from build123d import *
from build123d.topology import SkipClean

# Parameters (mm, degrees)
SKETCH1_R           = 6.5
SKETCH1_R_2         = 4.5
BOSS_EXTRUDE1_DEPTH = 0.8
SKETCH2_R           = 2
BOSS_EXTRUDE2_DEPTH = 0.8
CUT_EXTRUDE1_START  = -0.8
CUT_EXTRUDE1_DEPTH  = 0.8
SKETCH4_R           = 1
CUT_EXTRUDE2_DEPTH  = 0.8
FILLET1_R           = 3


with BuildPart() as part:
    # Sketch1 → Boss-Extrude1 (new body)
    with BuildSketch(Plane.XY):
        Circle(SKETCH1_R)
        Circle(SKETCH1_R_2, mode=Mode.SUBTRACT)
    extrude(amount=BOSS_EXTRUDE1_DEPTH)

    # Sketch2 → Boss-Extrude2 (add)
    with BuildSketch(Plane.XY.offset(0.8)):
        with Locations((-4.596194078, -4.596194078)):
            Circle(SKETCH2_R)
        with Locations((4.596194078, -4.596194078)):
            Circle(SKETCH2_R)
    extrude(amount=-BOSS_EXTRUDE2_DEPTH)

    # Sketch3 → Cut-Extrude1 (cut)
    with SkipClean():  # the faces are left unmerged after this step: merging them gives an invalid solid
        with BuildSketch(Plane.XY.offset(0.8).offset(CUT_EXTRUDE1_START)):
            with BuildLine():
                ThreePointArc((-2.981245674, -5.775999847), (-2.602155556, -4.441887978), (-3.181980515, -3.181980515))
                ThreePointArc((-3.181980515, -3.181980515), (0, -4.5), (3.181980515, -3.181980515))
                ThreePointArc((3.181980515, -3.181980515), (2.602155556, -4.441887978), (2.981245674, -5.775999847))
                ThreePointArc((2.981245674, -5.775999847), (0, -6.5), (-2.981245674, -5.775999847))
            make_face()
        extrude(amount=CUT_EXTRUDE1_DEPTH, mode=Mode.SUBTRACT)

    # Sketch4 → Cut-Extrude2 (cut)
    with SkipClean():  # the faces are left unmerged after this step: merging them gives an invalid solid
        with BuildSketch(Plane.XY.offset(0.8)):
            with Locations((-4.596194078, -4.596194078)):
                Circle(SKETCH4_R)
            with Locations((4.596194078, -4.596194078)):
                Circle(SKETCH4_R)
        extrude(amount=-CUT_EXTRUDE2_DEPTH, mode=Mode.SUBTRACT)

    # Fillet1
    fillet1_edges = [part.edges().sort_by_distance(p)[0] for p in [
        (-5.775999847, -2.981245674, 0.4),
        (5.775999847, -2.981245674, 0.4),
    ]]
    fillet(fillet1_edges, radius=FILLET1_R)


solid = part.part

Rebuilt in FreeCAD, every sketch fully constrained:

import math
import FreeCAD as App
import Part
import Sketcher

V = App.Vector
Q = App.Units.Quantity


def edges_at(feature, points):
    """Names of the edges that pass closest to the given points."""
    edges = feature.Shape.Edges
    near = lambda p: min(range(len(edges)), key=lambda i: edges[i].distToShape(Part.Vertex(*p))[0])
    return sorted({f"Edge{near(p) + 1}" for p in points})

doc = App.newDocument("Part")
params = doc.addObject("Spreadsheet::Sheet", "Params")
for row, (alias, value) in enumerate([
    ("sketch1_diameter", "13 mm"),
    ("sketch1_diameter2", "9 mm"),
    ("pad1_length", "0.8 mm"),
    ("sketch2_diameter", "4 mm"),
    ("pad2_length", "0.8 mm"),
    ("sketch3_radius", "2 mm"),
    ("sketch3_radius2", "6.5 mm"),
    ("sketch3_radius3", "4.5 mm"),
    ("pocket1_length", "0.8 mm"),
    ("sketch4_diameter", "2 mm"),
    ("pocket2_length", "0.8 mm"),
    ("fillet_radius", "3 mm"),
], start=1):
    params.set(f"A{row}", alias)
    params.set(f"B{row}", "=" + value)
    params.setAlias(f"B{row}", alias)

body = doc.addObject("PartDesign::Body", "Body")

# Sketch on XY plane
sketch1 = body.newObject("Sketcher::SketchObject", "Sketch")
sketch1.AttachmentSupport = (doc.getObject("XY_Plane"), [""])
sketch1.MapMode = "FlatFace"
sketch1.addGeometry([
    Part.Circle(V(0, 0, 0), V(0, 0, 1), 6.5),
    Part.Circle(V(0, 0, 0), V(0, 0, 1), 4.5),
], False)
sketch1.addConstraint([
    Sketcher.Constraint("Coincident", 0, 3, -1, 1),
    Sketcher.Constraint("Coincident", 1, 3, -1, 1),
    Sketcher.Constraint("Diameter", 0, Q("13 mm")),
    Sketcher.Constraint("Diameter", 1, Q("9 mm")),
])
sketch1.setExpression("Constraints[2]", "Params.sketch1_diameter")
sketch1.setExpression("Constraints[3]", "Params.sketch1_diameter2")
pad1 = body.newObject("PartDesign::Pad", "Pad")
pad1.Profile = sketch1
pad1.setExpression("Length", "Params.pad1_length")

# Sketch on XY plane
sketch2 = body.newObject("Sketcher::SketchObject", "Sketch001")
sketch2.AttachmentSupport = (doc.getObject("XY_Plane"), [""])
sketch2.MapMode = "FlatFace"
sketch2.AttachmentOffset = App.Placement(V(0, 0, 0.8), App.Rotation())
sketch2.addGeometry([
    Part.Circle(V(-4.596194, -4.596194, 0), V(0, 0, 1), 2),
    Part.Circle(V(4.596194, -4.596194, 0), V(0, 0, 1), 2),
], False)
sketch2.addConstraint([
    Sketcher.Constraint("Equal", 0, 1),
    Sketcher.Constraint("Symmetric", 0, 3, 1, 3, -2),
    Sketcher.Constraint("Diameter", 0, Q("4 mm")),
    Sketcher.Constraint("DistanceX", 0, 3, 1, 3, Q("9.192388 mm")),
    Sketcher.Constraint("DistanceY", 0, 3, -1, 1, Q("4.596194 mm")),
])
sketch2.setExpression("Constraints[2]", "Params.sketch2_diameter")
pad2 = body.newObject("PartDesign::Pad", "Pad001")
pad2.Profile = sketch2
pad2.setExpression("Length", "Params.pad2_length")
pad2.Reversed = True

# Sketch on XY plane
sketch3 = body.newObject("Sketcher::SketchObject", "Sketch002")
sketch3.AttachmentSupport = (doc.getObject("XY_Plane"), [""])
sketch3.MapMode = "FlatFace"
sketch3.addGeometry([
    Part.ArcOfCircle(Part.Circle(V(-4.596194, -4.596194, 0), V(0, 0, 1), 2), math.radians(-36.150117), math.radians(45)),
    Part.ArcOfCircle(Part.Circle(V(0, 0, 0), V(0, 0, 1), 6.5), math.radians(-117.300234), math.radians(-62.699766)),
    Part.ArcOfCircle(Part.Circle(V(4.596194, -4.596194, 0), V(0, 0, 1), 2), math.radians(135), math.radians(216.150117)),
    Part.ArcOfCircle(Part.Circle(V(0, 0, 0), V(0, 0, 1), 4.5), math.radians(-135), math.radians(-45)),
], False)
sketch3.addConstraint([
    Sketcher.Constraint("Coincident", 0, 1, 1, 1),
    Sketcher.Constraint("Coincident", 1, 2, 2, 2),
    Sketcher.Constraint("Tangent", 2, 1, 3, 2),
    Sketcher.Constraint("Tangent", 3, 1, 0, 2),
    Sketcher.Constraint("Coincident", 1, 3, -1, 1),
    Sketcher.Constraint("Coincident", 3, 3, -1, 1),
    Sketcher.Constraint("Equal", 0, 2),
    Sketcher.Constraint("Horizontal", 0, 3, 2, 3),
    Sketcher.Constraint("Radius", 0, Q("2 mm")),
    Sketcher.Constraint("Radius", 1, Q("6.5 mm")),
    Sketcher.Constraint("Radius", 3, Q("4.5 mm")),
    Sketcher.Constraint("DistanceY", 0, 1, -1, 1, Q("5.776 mm")),
])
sketch3.setExpression("Constraints[8]", "Params.sketch3_radius")
sketch3.setExpression("Constraints[9]", "Params.sketch3_radius2")
sketch3.setExpression("Constraints[10]", "Params.sketch3_radius3")
pocket1 = body.newObject("PartDesign::Pocket", "Pocket")
pocket1.Profile = sketch3
pocket1.setExpression("Length", "Params.pocket1_length")
pocket1.Reversed = True

# Sketch on XY plane
sketch4 = body.newObject("Sketcher::SketchObject", "Sketch003")
sketch4.AttachmentSupport = (doc.getObject("XY_Plane"), [""])
sketch4.MapMode = "FlatFace"
sketch4.AttachmentOffset = App.Placement(V(0, 0, 0.8), App.Rotation())
sketch4.addGeometry([
    Part.Circle(V(-4.596194, -4.596194, 0), V(0, 0, 1), 1),
    Part.Circle(V(4.596194, -4.596194, 0), V(0, 0, 1), 1),
], False)
sketch4.addConstraint([
    Sketcher.Constraint("Equal", 0, 1),
    Sketcher.Constraint("Symmetric", 0, 3, 1, 3, -2),
    Sketcher.Constraint("Diameter", 0, Q("2 mm")),
    Sketcher.Constraint("DistanceX", 0, 3, 1, 3, Q("9.192388 mm")),
    Sketcher.Constraint("DistanceY", 0, 3, -1, 1, Q("4.596194 mm")),
])
sketch4.setExpression("Constraints[2]", "Params.sketch4_diameter")
pocket2 = body.newObject("PartDesign::Pocket", "Pocket001")
pocket2.Profile = sketch4
pocket2.setExpression("Length", "Params.pocket2_length")
doc.recompute()

fillet = body.newObject("PartDesign::Fillet", "Fillet")
fillet.Base = (pocket2, edges_at(pocket2, [(-5.776, -2.981, 0.4), (5.776, -2.981, 0.4)]))
fillet.setExpression("Radius", "Params.fillet_radius")

doc.recompute()
